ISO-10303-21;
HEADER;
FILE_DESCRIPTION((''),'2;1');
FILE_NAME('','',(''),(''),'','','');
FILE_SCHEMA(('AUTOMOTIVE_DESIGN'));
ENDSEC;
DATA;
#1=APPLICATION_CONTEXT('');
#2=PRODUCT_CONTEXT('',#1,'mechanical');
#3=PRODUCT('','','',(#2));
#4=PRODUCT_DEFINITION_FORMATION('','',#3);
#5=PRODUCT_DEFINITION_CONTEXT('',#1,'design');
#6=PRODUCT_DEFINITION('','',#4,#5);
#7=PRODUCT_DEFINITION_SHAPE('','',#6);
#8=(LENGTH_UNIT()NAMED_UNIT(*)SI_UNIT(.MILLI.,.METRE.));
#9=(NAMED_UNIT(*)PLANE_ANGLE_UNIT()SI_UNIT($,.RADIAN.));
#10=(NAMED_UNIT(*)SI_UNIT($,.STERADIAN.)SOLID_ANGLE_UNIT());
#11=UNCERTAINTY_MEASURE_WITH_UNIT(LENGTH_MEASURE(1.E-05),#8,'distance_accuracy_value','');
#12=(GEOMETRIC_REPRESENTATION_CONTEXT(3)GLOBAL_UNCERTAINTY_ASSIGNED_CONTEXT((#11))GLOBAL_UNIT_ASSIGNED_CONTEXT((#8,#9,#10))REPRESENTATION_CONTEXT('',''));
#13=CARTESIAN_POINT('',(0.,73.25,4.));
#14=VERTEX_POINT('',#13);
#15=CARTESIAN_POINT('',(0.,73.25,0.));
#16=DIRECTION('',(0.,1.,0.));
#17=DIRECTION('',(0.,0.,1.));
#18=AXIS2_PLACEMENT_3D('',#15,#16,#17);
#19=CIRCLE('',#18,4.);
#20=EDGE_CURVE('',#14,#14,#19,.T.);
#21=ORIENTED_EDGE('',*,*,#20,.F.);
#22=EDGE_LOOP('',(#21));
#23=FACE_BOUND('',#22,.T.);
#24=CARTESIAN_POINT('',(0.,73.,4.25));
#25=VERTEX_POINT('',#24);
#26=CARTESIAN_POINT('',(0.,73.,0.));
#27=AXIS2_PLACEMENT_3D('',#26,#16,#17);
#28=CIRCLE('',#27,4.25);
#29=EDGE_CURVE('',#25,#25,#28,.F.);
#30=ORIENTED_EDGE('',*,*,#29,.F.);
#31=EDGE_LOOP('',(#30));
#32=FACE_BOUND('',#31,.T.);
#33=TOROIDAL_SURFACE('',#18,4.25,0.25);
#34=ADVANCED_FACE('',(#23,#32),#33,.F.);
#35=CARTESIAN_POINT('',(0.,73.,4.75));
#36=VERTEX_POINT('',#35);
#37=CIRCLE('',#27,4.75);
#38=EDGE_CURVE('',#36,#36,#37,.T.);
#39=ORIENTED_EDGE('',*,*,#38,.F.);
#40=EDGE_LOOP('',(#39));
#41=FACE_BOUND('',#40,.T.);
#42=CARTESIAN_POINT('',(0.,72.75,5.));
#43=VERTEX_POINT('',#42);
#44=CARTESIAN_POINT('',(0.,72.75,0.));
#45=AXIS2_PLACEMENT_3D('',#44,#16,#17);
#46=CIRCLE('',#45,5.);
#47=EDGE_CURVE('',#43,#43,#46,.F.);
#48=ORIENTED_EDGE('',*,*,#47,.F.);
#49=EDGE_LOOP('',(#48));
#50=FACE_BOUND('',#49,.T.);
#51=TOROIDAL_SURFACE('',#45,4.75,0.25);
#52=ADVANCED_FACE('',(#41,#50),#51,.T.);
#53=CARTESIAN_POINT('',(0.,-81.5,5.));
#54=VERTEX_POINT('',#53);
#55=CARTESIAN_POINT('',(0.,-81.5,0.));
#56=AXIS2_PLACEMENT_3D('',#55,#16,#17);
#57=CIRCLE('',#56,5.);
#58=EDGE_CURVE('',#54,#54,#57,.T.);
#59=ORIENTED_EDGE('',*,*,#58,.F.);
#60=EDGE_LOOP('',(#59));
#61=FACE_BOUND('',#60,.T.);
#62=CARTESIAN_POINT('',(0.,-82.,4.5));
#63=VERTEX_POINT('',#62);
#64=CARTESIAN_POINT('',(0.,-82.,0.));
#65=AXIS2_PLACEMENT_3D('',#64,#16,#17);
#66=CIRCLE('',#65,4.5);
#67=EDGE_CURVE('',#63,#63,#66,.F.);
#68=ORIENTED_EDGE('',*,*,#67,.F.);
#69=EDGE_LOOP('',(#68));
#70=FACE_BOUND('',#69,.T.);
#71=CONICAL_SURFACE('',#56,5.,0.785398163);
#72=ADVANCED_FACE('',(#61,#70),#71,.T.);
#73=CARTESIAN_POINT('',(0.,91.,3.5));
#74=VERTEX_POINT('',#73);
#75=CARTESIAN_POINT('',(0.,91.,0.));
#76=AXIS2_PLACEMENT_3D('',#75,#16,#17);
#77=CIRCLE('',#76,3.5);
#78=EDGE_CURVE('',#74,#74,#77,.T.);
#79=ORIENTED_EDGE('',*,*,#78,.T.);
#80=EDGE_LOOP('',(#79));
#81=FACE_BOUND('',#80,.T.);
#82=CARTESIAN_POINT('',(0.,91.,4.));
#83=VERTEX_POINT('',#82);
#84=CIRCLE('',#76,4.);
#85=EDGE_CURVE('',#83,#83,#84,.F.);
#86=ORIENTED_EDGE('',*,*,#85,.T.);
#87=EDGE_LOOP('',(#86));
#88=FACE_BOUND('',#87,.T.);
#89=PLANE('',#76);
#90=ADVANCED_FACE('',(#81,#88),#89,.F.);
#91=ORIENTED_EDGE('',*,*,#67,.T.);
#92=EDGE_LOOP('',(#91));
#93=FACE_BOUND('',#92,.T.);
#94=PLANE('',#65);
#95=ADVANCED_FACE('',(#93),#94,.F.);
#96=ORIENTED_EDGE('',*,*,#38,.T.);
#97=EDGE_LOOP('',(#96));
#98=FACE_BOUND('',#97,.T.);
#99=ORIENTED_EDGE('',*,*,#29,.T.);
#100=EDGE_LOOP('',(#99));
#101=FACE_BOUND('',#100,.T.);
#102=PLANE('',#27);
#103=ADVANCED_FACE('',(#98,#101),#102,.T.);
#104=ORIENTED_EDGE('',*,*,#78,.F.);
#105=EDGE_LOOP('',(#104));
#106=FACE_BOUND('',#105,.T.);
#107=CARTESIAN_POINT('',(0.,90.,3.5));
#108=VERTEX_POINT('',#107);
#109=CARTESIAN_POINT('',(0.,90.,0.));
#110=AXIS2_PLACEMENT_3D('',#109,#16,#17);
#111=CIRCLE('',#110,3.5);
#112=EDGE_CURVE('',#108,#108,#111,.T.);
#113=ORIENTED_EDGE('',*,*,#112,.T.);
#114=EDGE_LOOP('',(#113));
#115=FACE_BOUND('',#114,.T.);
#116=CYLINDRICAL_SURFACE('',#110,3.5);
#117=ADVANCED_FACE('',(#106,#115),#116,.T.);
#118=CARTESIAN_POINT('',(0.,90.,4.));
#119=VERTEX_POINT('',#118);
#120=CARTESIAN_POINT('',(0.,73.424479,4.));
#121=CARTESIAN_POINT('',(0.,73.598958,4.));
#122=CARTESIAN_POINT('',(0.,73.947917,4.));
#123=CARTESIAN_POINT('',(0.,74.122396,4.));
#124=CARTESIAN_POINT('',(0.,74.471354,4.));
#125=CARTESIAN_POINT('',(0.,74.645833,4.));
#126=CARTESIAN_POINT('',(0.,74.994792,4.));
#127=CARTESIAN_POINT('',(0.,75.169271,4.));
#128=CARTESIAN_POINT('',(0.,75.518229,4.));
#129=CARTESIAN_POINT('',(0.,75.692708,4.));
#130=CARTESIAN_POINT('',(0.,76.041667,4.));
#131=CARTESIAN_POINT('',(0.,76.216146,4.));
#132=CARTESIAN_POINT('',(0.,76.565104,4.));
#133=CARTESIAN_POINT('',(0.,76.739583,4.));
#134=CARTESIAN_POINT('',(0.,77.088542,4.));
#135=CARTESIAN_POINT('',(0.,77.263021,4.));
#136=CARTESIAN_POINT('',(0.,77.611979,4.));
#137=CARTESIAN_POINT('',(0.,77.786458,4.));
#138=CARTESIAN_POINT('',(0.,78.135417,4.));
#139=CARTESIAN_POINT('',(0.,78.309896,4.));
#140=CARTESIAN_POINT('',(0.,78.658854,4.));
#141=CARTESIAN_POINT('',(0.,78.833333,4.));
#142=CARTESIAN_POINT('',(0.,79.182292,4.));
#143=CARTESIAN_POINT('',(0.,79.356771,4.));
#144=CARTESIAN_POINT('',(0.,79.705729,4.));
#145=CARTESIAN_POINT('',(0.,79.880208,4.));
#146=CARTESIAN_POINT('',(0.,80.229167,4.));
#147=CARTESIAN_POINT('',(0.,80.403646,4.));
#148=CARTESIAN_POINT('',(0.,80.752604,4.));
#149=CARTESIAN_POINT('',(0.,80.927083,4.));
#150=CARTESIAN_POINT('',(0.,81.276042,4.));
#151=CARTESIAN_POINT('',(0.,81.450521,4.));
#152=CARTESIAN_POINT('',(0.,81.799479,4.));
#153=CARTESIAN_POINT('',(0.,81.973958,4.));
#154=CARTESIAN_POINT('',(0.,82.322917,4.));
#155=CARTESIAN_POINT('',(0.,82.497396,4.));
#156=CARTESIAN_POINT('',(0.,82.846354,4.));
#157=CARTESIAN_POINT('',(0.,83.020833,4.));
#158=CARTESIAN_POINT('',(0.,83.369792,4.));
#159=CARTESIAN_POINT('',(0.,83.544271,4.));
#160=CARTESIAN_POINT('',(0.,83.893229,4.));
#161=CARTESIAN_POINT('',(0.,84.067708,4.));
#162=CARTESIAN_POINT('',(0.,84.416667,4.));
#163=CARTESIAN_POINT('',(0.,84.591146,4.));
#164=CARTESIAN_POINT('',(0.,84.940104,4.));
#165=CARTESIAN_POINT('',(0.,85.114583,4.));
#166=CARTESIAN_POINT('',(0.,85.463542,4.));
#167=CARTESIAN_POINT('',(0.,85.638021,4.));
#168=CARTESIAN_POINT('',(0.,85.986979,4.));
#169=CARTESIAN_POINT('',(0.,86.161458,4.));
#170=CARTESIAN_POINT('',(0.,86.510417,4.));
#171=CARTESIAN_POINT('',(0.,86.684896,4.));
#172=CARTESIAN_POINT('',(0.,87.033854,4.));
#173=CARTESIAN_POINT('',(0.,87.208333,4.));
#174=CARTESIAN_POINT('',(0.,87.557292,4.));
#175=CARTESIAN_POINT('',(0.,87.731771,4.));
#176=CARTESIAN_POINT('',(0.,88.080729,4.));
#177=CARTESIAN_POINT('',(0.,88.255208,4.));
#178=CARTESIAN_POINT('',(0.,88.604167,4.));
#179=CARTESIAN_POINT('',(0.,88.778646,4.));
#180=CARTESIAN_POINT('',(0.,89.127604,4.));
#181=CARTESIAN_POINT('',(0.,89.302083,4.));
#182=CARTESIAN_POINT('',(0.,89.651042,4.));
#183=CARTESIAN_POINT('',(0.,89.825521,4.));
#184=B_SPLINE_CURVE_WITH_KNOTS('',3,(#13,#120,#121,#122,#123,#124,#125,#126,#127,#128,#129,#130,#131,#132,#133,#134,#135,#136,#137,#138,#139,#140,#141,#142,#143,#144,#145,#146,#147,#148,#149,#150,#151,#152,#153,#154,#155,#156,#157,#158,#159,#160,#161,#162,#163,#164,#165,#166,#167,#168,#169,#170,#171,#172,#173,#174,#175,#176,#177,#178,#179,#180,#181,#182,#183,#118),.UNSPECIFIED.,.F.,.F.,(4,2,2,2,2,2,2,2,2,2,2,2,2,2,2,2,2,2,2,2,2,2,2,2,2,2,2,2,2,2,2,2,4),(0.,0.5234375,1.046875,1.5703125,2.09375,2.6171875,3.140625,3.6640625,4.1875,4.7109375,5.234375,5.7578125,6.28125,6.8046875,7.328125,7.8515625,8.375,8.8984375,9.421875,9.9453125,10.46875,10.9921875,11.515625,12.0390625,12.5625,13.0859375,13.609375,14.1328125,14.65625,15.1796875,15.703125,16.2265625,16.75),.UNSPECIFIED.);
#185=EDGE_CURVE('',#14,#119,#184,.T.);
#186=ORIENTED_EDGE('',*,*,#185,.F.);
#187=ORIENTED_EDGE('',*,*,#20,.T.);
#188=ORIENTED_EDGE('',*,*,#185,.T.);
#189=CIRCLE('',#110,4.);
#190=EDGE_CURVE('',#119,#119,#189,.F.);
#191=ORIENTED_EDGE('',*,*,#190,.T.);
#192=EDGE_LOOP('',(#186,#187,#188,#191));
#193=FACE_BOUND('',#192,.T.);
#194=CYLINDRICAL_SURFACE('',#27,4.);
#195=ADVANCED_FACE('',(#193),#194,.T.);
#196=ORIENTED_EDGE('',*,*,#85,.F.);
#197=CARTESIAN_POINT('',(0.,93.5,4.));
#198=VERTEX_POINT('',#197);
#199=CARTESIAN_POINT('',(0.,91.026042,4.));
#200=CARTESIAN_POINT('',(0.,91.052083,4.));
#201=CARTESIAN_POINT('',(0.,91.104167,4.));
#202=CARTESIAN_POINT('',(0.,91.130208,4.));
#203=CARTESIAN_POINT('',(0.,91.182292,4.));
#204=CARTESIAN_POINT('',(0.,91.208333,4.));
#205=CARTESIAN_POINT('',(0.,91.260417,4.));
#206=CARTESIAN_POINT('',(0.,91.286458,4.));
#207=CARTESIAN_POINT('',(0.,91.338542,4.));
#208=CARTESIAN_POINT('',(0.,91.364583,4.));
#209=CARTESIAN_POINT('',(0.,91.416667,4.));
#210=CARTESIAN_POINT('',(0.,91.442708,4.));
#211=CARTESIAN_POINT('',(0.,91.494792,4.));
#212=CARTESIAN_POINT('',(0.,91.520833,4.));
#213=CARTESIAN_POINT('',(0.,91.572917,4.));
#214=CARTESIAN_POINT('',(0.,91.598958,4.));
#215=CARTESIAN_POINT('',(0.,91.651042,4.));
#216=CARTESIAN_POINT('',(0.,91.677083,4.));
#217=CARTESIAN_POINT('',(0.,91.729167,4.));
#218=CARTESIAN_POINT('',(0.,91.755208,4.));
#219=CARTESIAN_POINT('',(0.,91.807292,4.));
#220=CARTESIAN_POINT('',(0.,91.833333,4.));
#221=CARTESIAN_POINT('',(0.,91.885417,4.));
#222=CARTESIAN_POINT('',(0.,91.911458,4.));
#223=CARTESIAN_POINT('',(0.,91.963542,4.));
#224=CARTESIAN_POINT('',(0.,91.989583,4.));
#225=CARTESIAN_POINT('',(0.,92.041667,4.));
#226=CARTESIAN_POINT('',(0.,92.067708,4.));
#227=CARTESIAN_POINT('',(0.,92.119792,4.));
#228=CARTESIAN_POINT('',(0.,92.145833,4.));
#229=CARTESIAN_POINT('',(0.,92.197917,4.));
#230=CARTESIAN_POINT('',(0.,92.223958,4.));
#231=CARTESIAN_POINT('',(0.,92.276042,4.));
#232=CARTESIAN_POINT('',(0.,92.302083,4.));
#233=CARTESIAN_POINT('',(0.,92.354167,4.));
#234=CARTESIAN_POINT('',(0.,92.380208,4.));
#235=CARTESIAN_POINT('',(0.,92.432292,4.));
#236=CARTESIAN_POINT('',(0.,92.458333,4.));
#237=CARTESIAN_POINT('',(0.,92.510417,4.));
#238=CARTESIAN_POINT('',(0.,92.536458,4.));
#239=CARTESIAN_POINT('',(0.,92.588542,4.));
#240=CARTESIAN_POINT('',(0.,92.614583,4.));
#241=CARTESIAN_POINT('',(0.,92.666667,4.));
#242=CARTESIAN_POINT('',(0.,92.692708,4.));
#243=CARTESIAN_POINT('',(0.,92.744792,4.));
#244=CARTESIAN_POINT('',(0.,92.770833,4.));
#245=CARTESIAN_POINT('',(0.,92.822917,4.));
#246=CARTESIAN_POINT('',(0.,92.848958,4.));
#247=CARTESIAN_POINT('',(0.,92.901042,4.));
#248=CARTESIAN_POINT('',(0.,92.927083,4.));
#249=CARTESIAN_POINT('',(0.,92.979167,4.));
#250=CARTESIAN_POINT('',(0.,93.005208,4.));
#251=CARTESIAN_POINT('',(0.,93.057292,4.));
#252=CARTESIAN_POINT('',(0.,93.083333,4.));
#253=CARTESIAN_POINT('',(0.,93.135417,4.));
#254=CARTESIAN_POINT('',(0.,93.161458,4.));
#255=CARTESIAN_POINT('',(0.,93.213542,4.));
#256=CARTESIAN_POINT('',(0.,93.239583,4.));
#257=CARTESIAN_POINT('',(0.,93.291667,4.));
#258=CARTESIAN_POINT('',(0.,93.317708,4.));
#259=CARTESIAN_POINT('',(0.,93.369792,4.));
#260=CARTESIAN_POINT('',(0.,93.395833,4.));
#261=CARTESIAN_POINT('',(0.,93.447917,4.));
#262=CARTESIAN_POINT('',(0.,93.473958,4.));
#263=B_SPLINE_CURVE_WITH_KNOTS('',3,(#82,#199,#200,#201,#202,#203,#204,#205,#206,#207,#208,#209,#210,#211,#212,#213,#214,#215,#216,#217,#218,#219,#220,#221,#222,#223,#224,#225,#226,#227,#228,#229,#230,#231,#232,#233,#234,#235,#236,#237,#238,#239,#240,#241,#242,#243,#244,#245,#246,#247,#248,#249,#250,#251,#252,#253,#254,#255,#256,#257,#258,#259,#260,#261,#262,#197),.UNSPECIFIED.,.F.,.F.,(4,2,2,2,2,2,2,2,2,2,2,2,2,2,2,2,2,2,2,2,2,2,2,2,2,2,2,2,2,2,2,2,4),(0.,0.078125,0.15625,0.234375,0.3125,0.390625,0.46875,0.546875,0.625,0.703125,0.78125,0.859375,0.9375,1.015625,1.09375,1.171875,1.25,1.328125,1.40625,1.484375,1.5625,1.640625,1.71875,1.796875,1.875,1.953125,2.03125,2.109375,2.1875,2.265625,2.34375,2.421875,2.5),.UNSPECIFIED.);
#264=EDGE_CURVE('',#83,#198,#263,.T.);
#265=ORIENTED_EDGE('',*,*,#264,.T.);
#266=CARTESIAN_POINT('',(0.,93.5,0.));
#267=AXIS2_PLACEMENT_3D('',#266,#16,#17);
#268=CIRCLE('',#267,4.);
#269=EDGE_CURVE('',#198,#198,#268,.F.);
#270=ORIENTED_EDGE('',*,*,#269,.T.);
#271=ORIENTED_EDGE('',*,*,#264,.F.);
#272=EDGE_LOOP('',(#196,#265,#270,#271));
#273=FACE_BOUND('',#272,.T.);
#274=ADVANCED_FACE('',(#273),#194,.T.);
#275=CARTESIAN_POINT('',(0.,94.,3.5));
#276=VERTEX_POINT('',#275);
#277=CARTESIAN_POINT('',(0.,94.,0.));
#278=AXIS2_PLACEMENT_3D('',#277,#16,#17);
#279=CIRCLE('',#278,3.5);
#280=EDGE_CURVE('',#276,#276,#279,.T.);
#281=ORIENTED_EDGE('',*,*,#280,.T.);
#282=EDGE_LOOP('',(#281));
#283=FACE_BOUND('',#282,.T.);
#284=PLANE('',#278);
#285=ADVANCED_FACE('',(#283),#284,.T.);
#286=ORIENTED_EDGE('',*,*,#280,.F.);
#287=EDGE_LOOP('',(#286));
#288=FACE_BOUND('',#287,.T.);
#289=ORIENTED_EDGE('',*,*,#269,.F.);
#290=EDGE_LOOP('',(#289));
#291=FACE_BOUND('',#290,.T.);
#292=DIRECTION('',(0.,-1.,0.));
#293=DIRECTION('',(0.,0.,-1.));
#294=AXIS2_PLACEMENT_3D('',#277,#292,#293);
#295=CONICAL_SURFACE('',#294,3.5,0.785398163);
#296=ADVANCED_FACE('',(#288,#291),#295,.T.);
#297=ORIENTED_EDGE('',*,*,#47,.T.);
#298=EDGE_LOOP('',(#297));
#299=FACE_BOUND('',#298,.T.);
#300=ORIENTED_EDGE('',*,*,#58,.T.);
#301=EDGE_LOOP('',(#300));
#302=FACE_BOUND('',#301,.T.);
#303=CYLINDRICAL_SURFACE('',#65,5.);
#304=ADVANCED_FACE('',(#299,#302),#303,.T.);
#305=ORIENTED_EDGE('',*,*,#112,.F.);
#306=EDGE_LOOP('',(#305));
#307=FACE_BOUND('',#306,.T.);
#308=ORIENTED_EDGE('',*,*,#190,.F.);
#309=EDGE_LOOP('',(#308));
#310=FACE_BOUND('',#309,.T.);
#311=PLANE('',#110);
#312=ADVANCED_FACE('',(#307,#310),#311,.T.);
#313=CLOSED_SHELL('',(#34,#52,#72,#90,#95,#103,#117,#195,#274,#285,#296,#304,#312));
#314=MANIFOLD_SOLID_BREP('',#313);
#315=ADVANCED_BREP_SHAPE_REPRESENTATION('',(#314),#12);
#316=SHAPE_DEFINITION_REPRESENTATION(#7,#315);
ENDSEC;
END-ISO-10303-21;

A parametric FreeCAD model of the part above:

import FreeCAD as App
import Part
import Sketcher
from FreeCAD import Vector


def edges_at(feature, points):
    """Names of the edges that pass closest to the given points."""
    edges = feature.Shape.Edges
    near = lambda p: min(range(len(edges)), key=lambda i: edges[i].distToShape(Part.Vertex(*p))[0])
    return sorted({f"Edge{near(p) + 1}" for p in points})

doc = App.newDocument("Part")
body = doc.addObject("PartDesign::Body", "Body")

sketch1 = body.newObject("Sketcher::SketchObject", "Sketch")
sketch1.AttachmentSupport = (doc.getObject("XZ_Plane"), [""])
sketch1.MapMode = "FlatFace"
sketch1.addGeometry(Part.Circle(Vector(0, 0, 0), Vector(0, 0, 1), 5), False)
sketch1.addConstraint([
    Sketcher.Constraint("Coincident", 0, 3, -1, 1),
    Sketcher.Constraint("Diameter", 0, 10.0),
])
pad1 = body.newObject("PartDesign::Pad", "Pad")
pad1.Profile = sketch1
pad1.Type = "TwoLengths"
pad1.Length = 94
pad1.Length2 = 82
pad1.Reversed = True

sketch2 = body.newObject("Sketcher::SketchObject", "Sketch001")
sketch2.AttachmentSupport = (doc.getObject("XZ_Plane"), [""])
sketch2.MapMode = "FlatFace"
sketch2.AttachmentOffset = App.Placement(Vector(0, 0, -94), App.Rotation())
sketch2.addGeometry([
    Part.Circle(Vector(0, 0, 0), Vector(0, 0, 1), 14),
    Part.Circle(Vector(0, 0, 0), Vector(0, 0, 1), 4),
], False)
sketch2.addConstraint([
    Sketcher.Constraint("Coincident", 0, 3, -1, 1),
    Sketcher.Constraint("Coincident", 1, 3, -1, 1),
    Sketcher.Constraint("Diameter", 0, 28.0),
    Sketcher.Constraint("Diameter", 1, 8.0),
])
pocket1 = body.newObject("PartDesign::Pocket", "Pocket")
pocket1.Profile = sketch2
pocket1.Length = 21
pocket1.Reversed = True
doc.recompute()

chamfer = body.newObject("PartDesign::Chamfer", "Chamfer")
chamfer.Base = (pocket1, edges_at(pocket1, [(0, 94, -4)]))
chamfer.Size = 0.5
doc.recompute()

fillet = body.newObject("PartDesign::Fillet", "Fillet")
fillet.Base = (chamfer, edges_at(chamfer, [(0, 73, -5), (0, 73, -4)]))
fillet.Radius = 0.25
doc.recompute()

chamfer2 = body.newObject("PartDesign::Chamfer", "Chamfer001")
chamfer2.Base = (fillet, edges_at(fillet, [(0, -82, -5)]))
chamfer2.Size = 0.5

sketch3 = body.newObject("Sketcher::SketchObject", "Sketch002")
sketch3.AttachmentSupport = (doc.getObject("XZ_Plane"), [""])
sketch3.MapMode = "FlatFace"
sketch3.AttachmentOffset = App.Placement(Vector(0, 0, -91), App.Rotation())
sketch3.addGeometry([
    Part.Circle(Vector(0, 0, 0), Vector(0, 0, 1), 13.5),
    Part.Circle(Vector(0, 0, 0), Vector(0, 0, 1), 3.5),
], False)
sketch3.addConstraint([
    Sketcher.Constraint("Coincident", 0, 3, -1, 1),
    Sketcher.Constraint("Coincident", 1, 3, -1, 1),
    Sketcher.Constraint("Diameter", 0, 27.0),
    Sketcher.Constraint("Diameter", 1, 7.0),
])
pocket2 = body.newObject("PartDesign::Pocket", "Pocket001")
pocket2.Profile = sketch3
pocket2.Length = 1
pocket2.Reversed = True

doc.recompute()
